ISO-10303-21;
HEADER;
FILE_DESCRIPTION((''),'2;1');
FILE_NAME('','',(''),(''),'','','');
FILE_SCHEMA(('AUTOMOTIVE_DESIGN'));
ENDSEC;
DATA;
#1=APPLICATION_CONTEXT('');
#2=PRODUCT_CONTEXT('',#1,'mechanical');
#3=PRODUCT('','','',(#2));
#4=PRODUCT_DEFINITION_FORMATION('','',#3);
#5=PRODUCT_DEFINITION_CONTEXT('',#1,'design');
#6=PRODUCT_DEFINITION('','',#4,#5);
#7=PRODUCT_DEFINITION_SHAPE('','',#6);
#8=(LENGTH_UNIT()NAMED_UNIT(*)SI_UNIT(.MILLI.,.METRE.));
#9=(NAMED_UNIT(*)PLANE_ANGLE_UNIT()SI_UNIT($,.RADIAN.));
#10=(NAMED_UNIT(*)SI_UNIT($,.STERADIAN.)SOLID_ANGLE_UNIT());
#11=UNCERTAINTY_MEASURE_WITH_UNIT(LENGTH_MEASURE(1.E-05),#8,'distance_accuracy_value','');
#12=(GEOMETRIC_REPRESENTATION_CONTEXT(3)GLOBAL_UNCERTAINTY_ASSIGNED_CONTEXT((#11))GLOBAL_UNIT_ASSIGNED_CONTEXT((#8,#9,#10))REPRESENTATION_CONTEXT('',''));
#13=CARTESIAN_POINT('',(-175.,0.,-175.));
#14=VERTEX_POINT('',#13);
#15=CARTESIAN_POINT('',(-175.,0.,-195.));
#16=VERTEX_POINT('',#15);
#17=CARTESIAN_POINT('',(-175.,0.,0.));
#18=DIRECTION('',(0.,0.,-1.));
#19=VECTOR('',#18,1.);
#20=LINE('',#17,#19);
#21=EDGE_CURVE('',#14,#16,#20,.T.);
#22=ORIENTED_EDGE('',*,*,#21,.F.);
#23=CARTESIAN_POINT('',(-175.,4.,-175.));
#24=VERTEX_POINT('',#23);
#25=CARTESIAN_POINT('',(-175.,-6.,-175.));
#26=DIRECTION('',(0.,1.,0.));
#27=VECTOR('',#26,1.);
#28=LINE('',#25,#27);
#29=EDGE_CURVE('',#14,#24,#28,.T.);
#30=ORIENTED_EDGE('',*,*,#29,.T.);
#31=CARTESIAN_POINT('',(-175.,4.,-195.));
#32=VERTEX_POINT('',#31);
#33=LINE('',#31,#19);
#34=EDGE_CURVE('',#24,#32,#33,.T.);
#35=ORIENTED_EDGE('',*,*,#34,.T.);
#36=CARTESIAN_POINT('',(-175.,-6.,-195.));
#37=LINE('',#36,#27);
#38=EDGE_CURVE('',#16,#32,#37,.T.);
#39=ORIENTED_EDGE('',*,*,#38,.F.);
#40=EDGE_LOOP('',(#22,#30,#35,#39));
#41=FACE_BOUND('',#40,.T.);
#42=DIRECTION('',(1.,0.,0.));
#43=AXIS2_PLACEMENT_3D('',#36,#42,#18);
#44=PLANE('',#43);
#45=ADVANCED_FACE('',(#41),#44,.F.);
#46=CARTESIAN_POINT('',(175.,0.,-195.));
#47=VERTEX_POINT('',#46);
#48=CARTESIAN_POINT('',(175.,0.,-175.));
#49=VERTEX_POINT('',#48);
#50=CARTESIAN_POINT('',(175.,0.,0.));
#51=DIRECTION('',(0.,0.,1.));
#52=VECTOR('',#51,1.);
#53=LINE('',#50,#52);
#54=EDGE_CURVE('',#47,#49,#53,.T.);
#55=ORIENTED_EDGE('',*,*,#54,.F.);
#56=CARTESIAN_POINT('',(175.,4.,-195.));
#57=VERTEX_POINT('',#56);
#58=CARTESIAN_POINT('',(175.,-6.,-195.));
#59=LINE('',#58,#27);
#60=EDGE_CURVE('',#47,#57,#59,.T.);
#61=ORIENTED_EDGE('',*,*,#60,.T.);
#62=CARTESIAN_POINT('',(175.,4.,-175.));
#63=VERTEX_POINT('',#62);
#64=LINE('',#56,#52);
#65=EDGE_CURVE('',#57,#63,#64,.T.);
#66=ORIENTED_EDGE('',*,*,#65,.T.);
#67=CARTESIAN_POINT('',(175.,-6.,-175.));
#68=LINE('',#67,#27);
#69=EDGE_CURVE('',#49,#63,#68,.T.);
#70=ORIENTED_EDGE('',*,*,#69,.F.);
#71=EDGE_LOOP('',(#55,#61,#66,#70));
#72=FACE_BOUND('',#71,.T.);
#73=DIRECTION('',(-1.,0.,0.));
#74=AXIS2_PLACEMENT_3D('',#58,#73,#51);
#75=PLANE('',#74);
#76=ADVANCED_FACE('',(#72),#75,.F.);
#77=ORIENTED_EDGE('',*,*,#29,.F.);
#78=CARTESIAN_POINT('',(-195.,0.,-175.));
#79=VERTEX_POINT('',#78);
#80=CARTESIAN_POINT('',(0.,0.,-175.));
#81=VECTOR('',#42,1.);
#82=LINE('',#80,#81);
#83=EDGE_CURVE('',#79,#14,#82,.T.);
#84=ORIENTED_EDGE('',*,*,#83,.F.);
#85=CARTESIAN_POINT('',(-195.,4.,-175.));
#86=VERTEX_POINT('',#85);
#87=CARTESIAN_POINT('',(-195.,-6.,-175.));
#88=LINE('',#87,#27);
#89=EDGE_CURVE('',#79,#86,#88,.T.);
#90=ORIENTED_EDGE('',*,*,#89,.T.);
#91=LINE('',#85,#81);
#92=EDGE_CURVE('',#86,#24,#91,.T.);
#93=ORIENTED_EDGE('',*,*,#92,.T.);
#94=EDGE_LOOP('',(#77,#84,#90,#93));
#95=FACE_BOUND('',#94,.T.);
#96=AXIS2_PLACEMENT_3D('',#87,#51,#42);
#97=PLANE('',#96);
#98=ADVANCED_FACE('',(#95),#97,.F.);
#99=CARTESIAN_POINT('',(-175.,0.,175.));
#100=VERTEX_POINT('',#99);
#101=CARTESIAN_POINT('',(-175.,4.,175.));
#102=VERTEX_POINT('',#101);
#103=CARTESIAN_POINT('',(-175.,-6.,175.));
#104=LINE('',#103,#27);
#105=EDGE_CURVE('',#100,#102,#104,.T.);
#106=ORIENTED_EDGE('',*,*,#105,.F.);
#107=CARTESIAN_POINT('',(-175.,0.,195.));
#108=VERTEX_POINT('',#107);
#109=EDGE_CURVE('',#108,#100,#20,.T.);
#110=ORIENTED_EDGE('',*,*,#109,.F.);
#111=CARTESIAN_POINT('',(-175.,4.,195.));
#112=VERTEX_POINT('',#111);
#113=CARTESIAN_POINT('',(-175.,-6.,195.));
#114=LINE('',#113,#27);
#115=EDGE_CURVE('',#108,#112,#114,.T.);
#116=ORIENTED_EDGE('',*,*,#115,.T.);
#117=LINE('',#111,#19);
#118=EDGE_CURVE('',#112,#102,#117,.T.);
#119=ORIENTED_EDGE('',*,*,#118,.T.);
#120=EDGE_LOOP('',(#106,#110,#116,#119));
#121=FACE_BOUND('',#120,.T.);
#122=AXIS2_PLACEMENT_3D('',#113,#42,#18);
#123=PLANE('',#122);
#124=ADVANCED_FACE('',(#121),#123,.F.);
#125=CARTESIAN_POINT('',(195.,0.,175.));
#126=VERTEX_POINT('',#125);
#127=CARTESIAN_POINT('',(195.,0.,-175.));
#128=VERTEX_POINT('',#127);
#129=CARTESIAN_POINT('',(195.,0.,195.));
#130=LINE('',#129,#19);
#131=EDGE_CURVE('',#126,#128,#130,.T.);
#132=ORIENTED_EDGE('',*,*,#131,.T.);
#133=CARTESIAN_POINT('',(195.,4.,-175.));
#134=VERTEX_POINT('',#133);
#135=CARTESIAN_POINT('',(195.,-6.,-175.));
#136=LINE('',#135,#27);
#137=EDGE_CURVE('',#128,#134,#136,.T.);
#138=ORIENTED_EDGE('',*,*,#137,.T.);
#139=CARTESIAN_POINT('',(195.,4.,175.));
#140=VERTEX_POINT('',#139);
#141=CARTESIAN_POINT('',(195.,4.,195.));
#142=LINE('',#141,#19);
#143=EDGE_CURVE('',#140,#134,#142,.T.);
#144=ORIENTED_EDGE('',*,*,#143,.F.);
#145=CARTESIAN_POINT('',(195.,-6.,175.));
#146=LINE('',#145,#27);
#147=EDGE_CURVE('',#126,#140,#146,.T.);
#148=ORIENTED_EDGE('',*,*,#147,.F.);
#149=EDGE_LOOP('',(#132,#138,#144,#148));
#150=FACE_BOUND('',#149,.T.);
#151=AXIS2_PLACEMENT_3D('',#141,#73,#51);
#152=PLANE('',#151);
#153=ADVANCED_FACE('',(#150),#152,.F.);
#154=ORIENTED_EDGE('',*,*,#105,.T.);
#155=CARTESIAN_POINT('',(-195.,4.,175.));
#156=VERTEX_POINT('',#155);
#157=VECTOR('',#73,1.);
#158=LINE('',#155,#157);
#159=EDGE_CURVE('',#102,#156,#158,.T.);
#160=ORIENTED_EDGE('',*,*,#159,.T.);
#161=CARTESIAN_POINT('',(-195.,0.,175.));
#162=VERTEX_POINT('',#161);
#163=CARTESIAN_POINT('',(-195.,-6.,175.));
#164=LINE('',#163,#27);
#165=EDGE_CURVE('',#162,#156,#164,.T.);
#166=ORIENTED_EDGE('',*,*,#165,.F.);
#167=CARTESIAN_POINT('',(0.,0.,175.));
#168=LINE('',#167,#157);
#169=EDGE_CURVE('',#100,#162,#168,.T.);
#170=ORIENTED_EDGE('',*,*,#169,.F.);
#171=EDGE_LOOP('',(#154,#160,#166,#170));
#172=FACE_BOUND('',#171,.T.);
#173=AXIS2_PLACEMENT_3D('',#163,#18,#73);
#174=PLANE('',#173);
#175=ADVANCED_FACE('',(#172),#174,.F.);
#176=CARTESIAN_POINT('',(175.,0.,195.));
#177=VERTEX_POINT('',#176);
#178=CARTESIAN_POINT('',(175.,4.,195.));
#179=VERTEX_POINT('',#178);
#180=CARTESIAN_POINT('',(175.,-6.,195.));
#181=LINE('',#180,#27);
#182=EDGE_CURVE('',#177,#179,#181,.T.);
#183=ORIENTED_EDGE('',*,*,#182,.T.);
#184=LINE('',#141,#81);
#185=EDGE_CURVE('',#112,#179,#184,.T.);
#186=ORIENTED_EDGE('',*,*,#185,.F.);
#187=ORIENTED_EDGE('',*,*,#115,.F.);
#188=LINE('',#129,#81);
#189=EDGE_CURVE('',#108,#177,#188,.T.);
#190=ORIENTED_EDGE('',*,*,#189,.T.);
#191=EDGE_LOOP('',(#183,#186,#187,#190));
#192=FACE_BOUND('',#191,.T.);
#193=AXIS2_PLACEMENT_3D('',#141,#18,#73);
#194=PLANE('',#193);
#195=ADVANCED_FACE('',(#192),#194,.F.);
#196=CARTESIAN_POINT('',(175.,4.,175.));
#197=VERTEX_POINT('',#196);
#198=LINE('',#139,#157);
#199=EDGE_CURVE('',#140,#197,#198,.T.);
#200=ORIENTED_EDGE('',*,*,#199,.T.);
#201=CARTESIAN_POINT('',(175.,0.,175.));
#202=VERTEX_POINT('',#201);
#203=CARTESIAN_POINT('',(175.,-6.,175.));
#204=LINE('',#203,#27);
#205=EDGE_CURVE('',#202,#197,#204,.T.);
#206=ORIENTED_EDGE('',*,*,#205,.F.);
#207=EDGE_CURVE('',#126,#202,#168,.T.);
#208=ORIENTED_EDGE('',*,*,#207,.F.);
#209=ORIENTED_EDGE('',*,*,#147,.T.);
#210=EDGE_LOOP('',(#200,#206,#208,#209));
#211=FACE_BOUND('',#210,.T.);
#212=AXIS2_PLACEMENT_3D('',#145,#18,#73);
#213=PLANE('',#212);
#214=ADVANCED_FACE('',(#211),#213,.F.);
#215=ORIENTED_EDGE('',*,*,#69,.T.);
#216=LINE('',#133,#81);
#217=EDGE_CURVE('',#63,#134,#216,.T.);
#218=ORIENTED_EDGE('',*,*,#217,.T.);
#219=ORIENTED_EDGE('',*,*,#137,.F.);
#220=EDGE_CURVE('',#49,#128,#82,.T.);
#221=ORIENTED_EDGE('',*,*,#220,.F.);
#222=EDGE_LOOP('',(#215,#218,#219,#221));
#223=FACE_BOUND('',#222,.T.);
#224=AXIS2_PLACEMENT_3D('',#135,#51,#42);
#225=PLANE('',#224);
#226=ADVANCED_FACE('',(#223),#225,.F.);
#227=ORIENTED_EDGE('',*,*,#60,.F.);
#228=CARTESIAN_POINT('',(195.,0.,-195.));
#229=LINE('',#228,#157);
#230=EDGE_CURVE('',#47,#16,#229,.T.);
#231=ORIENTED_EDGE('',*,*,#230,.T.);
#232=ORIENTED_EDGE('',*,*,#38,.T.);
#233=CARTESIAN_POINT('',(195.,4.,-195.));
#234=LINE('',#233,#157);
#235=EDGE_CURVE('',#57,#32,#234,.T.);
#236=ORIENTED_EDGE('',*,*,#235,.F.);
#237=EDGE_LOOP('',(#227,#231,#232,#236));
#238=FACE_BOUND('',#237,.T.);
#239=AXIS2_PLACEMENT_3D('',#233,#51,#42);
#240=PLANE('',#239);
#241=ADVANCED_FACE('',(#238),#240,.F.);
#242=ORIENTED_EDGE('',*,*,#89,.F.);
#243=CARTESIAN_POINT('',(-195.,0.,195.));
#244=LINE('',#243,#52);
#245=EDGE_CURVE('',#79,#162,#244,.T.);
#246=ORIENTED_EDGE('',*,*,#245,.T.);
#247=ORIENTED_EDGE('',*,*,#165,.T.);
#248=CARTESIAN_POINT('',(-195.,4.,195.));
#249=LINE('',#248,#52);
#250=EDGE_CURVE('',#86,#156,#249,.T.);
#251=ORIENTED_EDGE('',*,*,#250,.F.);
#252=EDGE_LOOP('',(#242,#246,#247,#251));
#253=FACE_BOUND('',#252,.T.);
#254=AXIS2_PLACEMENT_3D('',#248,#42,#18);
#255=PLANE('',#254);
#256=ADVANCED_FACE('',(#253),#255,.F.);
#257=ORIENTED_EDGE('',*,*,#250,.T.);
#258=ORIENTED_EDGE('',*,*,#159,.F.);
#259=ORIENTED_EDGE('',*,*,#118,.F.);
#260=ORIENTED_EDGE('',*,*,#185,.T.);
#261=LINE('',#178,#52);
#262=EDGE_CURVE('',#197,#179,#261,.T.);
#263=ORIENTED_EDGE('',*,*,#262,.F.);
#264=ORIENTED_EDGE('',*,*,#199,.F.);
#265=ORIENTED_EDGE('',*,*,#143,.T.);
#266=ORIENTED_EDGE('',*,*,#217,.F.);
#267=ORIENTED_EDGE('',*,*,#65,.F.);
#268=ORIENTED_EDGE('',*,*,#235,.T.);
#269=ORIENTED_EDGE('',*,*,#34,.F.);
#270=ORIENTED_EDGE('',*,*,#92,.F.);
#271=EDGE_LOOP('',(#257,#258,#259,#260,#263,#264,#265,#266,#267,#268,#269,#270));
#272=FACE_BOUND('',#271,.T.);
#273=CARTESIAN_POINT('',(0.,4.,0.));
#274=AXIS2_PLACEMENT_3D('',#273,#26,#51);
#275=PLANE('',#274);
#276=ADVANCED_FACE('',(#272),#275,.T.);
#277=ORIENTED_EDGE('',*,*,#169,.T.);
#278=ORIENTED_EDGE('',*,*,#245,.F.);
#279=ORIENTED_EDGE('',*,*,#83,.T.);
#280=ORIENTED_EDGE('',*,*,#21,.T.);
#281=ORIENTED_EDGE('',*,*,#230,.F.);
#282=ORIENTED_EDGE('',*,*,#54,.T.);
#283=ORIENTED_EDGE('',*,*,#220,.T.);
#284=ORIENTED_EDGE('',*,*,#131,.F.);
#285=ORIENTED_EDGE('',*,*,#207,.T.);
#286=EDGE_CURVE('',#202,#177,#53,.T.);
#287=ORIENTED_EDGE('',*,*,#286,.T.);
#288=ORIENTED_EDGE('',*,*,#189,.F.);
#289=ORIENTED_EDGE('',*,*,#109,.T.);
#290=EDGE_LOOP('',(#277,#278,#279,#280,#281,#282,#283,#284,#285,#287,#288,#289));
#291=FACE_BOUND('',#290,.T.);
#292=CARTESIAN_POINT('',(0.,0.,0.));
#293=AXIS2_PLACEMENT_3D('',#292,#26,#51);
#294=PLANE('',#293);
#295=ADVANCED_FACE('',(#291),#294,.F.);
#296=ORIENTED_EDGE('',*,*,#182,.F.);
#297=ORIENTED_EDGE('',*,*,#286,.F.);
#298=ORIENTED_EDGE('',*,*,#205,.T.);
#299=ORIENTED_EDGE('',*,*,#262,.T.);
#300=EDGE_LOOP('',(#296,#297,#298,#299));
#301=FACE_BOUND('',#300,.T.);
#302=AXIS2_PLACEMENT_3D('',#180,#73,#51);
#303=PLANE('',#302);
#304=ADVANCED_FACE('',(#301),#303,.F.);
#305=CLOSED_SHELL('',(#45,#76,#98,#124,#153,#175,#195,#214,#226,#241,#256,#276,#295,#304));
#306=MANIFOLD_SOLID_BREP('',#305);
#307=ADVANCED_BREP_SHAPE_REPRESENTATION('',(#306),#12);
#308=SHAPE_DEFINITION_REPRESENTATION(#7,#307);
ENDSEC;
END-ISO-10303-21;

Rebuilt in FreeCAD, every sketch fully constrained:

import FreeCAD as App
import Part
import Sketcher
Q = App.Units.Quantity

doc = App.newDocument("Part")
body = doc.addObject("PartDesign::Body", "Body")

# Sketch on XZ plane
sketch1 = doc.addObject("Sketcher::SketchObject", "Sketch")
body.addObject(sketch1)
sketch1.AttachmentSupport = (doc.XZ_Plane, [""])
sketch1.MapMode = "FlatFace"
sketch1.addGeometry(Part.LineSegment(App.Vector(-195, -195, 0), App.Vector(-195, 195, 0)), False)
sketch1.addGeometry(Part.LineSegment(App.Vector(-195, 195, 0), App.Vector(195, 195, 0)), False)
sketch1.addGeometry(Part.LineSegment(App.Vector(195, 195, 0), App.Vector(195, -195, 0)), False)
sketch1.addGeometry(Part.LineSegment(App.Vector(195, -195, 0), App.Vector(-195, -195, 0)), False)
sketch1.addConstraint(Sketcher.Constraint("Coincident", 0, 2, 1, 1))
sketch1.addConstraint(Sketcher.Constraint("Coincident", 1, 2, 2, 1))
sketch1.addConstraint(Sketcher.Constraint("Coincident", 2, 2, 3, 1))
sketch1.addConstraint(Sketcher.Constraint("Coincident", 3, 2, 0, 1))
sketch1.addConstraint(Sketcher.Constraint("Vertical", 0))
sketch1.addConstraint(Sketcher.Constraint("Horizontal", 1))
sketch1.addConstraint(Sketcher.Constraint("Vertical", 2))
sketch1.addConstraint(Sketcher.Constraint("Horizontal", 3))
sketch1.addConstraint(Sketcher.Constraint("Symmetric", 0, 2, 2, 2, -1, 1))
sketch1.addConstraint(Sketcher.Constraint("Equal", 3, 0))
sketch1.addConstraint(Sketcher.Constraint("DistanceX", 1, 1, 1, 2, Q("390 mm")))
pad1 = doc.addObject("PartDesign::Pad", "Pad")
body.addObject(pad1)
pad1.Profile = sketch1
pad1.Length = 4
pad1.Reversed = True

# Sketch on XZ plane
sketch2 = doc.addObject("Sketcher::SketchObject", "Sketch001")
body.addObject(sketch2)
sketch2.AttachmentSupport = (doc.XZ_Plane, [""])
sketch2.MapMode = "FlatFace"
sketch2.AttachmentOffset = App.Placement(App.Vector(0, 0, -4), App.Rotation())
sketch2.addGeometry(Part.LineSegment(App.Vector(-195, -195, 0), App.Vector(-195, -175, 0)), False)
sketch2.addGeometry(Part.LineSegment(App.Vector(-195, -175, 0), App.Vector(-175, -175, 0)), False)
sketch2.addGeometry(Part.LineSegment(App.Vector(-175, -175, 0), App.Vector(-175, -195, 0)), False)
sketch2.addGeometry(Part.LineSegment(App.Vector(-175, -195, 0), App.Vector(-195, -195, 0)), False)
sketch2.addGeometry(Part.LineSegment(App.Vector(175, -195, 0), App.Vector(175, -175, 0)), False)
sketch2.addGeometry(Part.LineSegment(App.Vector(175, -175, 0), App.Vector(195, -175, 0)), False)
sketch2.addGeometry(Part.LineSegment(App.Vector(195, -175, 0), App.Vector(195, -195, 0)), False)
sketch2.addGeometry(Part.LineSegment(App.Vector(195, -195, 0), App.Vector(175, -195, 0)), False)
sketch2.addGeometry(Part.LineSegment(App.Vector(175, 175, 0), App.Vector(175, 195, 0)), False)
sketch2.addGeometry(Part.LineSegment(App.Vector(175, 195, 0), App.Vector(195, 195, 0)), False)
sketch2.addGeometry(Part.LineSegment(App.Vector(195, 195, 0), App.Vector(195, 175, 0)), False)
sketch2.addGeometry(Part.LineSegment(App.Vector(195, 175, 0), App.Vector(175, 175, 0)), False)
sketch2.addGeometry(Part.LineSegment(App.Vector(-195, 175, 0), App.Vector(-195, 195, 0)), False)
sketch2.addGeometry(Part.LineSegment(App.Vector(-195, 195, 0), App.Vector(-175, 195, 0)), False)
sketch2.addGeometry(Part.LineSegment(App.Vector(-175, 195, 0), App.Vector(-175, 175, 0)), False)
sketch2.addGeometry(Part.LineSegment(App.Vector(-175, 175, 0), App.Vector(-195, 175, 0)), False)
sketch2.addConstraint(Sketcher.Constraint("Coincident", 0, 2, 1, 1))
sketch2.addConstraint(Sketcher.Constraint("Coincident", 1, 2, 2, 1))
sketch2.addConstraint(Sketcher.Constraint("Coincident", 2, 2, 3, 1))
sketch2.addConstraint(Sketcher.Constraint("Coincident", 3, 2, 0, 1))
sketch2.addConstraint(Sketcher.Constraint("Coincident", 4, 2, 5, 1))
sketch2.addConstraint(Sketcher.Constraint("Coincident", 5, 2, 6, 1))
sketch2.addConstraint(Sketcher.Constraint("Coincident", 6, 2, 7, 1))
sketch2.addConstraint(Sketcher.Constraint("Coincident", 7, 2, 4, 1))
sketch2.addConstraint(Sketcher.Constraint("Coincident", 8, 2, 9, 1))
sketch2.addConstraint(Sketcher.Constraint("Coincident", 9, 2, 10, 1))
sketch2.addConstraint(Sketcher.Constraint("Coincident", 10, 2, 11, 1))
sketch2.addConstraint(Sketcher.Constraint("Coincident", 11, 2, 8, 1))
sketch2.addConstraint(Sketcher.Constraint("Coincident", 12, 2, 13, 1))
sketch2.addConstraint(Sketcher.Constraint("Coincident", 13, 2, 14, 1))
sketch2.addConstraint(Sketcher.Constraint("Coincident", 14, 2, 15, 1))
sketch2.addConstraint(Sketcher.Constraint("Coincident", 15, 2, 12, 1))
sketch2.addConstraint(Sketcher.Constraint("Vertical", 0))
sketch2.addConstraint(Sketcher.Constraint("Horizontal", 1))
sketch2.addConstraint(Sketcher.Constraint("Vertical", 2))
sketch2.addConstraint(Sketcher.Constraint("Horizontal", 3))
sketch2.addConstraint(Sketcher.Constraint("Vertical", 4))
sketch2.addConstraint(Sketcher.Constraint("Horizontal", 5))
sketch2.addConstraint(Sketcher.Constraint("Vertical", 6))
sketch2.addConstraint(Sketcher.Constraint("Horizontal", 7))
sketch2.addConstraint(Sketcher.Constraint("Vertical", 8))
sketch2.addConstraint(Sketcher.Constraint("Horizontal", 9))
sketch2.addConstraint(Sketcher.Constraint("Vertical", 10))
sketch2.addConstraint(Sketcher.Constraint("Horizontal", 11))
sketch2.addConstraint(Sketcher.Constraint("Vertical", 12))
sketch2.addConstraint(Sketcher.Constraint("Horizontal", 13))
sketch2.addConstraint(Sketcher.Constraint("Vertical", 14))
sketch2.addConstraint(Sketcher.Constraint("Horizontal", 15))
sketch2.addConstraint(Sketcher.Constraint("Symmetric", 2, 2, 8, 2, -1, 1))
sketch2.addConstraint(Sketcher.Constraint("Symmetric", 0, 2, 10, 2, -1, 1))
sketch2.addConstraint(Sketcher.Constraint("Symmetric", 6, 2, 12, 2, -1, 1))
sketch2.addConstraint(Sketcher.Constraint("Symmetric", 4, 2, 14, 2, -1, 1))
sketch2.addConstraint(Sketcher.Constraint("Symmetric", 1, 2, 4, 2, -2))
sketch2.addConstraint(Sketcher.Constraint("Symmetric", 3, 2, 6, 2, -2))
sketch2.addConstraint(Sketcher.Constraint("Equal", 15, 0))
sketch2.addConstraint(Sketcher.Constraint("DistanceX", 1, 1, 1, 2, Q("20 mm")))
sketch2.addConstraint(Sketcher.Constraint("DistanceX", 0, 2, -1, 1, Q("195 mm")))
sketch2.addConstraint(Sketcher.Constraint("DistanceY", 0, 2, -1, 1, Q("175 mm")))
pocket1 = doc.addObject("PartDesign::Pocket", "Pocket")
body.addObject(pocket1)
pocket1.Profile = sketch2
pocket1.Length = 10
pocket1.Reversed = True

doc.recompute()
